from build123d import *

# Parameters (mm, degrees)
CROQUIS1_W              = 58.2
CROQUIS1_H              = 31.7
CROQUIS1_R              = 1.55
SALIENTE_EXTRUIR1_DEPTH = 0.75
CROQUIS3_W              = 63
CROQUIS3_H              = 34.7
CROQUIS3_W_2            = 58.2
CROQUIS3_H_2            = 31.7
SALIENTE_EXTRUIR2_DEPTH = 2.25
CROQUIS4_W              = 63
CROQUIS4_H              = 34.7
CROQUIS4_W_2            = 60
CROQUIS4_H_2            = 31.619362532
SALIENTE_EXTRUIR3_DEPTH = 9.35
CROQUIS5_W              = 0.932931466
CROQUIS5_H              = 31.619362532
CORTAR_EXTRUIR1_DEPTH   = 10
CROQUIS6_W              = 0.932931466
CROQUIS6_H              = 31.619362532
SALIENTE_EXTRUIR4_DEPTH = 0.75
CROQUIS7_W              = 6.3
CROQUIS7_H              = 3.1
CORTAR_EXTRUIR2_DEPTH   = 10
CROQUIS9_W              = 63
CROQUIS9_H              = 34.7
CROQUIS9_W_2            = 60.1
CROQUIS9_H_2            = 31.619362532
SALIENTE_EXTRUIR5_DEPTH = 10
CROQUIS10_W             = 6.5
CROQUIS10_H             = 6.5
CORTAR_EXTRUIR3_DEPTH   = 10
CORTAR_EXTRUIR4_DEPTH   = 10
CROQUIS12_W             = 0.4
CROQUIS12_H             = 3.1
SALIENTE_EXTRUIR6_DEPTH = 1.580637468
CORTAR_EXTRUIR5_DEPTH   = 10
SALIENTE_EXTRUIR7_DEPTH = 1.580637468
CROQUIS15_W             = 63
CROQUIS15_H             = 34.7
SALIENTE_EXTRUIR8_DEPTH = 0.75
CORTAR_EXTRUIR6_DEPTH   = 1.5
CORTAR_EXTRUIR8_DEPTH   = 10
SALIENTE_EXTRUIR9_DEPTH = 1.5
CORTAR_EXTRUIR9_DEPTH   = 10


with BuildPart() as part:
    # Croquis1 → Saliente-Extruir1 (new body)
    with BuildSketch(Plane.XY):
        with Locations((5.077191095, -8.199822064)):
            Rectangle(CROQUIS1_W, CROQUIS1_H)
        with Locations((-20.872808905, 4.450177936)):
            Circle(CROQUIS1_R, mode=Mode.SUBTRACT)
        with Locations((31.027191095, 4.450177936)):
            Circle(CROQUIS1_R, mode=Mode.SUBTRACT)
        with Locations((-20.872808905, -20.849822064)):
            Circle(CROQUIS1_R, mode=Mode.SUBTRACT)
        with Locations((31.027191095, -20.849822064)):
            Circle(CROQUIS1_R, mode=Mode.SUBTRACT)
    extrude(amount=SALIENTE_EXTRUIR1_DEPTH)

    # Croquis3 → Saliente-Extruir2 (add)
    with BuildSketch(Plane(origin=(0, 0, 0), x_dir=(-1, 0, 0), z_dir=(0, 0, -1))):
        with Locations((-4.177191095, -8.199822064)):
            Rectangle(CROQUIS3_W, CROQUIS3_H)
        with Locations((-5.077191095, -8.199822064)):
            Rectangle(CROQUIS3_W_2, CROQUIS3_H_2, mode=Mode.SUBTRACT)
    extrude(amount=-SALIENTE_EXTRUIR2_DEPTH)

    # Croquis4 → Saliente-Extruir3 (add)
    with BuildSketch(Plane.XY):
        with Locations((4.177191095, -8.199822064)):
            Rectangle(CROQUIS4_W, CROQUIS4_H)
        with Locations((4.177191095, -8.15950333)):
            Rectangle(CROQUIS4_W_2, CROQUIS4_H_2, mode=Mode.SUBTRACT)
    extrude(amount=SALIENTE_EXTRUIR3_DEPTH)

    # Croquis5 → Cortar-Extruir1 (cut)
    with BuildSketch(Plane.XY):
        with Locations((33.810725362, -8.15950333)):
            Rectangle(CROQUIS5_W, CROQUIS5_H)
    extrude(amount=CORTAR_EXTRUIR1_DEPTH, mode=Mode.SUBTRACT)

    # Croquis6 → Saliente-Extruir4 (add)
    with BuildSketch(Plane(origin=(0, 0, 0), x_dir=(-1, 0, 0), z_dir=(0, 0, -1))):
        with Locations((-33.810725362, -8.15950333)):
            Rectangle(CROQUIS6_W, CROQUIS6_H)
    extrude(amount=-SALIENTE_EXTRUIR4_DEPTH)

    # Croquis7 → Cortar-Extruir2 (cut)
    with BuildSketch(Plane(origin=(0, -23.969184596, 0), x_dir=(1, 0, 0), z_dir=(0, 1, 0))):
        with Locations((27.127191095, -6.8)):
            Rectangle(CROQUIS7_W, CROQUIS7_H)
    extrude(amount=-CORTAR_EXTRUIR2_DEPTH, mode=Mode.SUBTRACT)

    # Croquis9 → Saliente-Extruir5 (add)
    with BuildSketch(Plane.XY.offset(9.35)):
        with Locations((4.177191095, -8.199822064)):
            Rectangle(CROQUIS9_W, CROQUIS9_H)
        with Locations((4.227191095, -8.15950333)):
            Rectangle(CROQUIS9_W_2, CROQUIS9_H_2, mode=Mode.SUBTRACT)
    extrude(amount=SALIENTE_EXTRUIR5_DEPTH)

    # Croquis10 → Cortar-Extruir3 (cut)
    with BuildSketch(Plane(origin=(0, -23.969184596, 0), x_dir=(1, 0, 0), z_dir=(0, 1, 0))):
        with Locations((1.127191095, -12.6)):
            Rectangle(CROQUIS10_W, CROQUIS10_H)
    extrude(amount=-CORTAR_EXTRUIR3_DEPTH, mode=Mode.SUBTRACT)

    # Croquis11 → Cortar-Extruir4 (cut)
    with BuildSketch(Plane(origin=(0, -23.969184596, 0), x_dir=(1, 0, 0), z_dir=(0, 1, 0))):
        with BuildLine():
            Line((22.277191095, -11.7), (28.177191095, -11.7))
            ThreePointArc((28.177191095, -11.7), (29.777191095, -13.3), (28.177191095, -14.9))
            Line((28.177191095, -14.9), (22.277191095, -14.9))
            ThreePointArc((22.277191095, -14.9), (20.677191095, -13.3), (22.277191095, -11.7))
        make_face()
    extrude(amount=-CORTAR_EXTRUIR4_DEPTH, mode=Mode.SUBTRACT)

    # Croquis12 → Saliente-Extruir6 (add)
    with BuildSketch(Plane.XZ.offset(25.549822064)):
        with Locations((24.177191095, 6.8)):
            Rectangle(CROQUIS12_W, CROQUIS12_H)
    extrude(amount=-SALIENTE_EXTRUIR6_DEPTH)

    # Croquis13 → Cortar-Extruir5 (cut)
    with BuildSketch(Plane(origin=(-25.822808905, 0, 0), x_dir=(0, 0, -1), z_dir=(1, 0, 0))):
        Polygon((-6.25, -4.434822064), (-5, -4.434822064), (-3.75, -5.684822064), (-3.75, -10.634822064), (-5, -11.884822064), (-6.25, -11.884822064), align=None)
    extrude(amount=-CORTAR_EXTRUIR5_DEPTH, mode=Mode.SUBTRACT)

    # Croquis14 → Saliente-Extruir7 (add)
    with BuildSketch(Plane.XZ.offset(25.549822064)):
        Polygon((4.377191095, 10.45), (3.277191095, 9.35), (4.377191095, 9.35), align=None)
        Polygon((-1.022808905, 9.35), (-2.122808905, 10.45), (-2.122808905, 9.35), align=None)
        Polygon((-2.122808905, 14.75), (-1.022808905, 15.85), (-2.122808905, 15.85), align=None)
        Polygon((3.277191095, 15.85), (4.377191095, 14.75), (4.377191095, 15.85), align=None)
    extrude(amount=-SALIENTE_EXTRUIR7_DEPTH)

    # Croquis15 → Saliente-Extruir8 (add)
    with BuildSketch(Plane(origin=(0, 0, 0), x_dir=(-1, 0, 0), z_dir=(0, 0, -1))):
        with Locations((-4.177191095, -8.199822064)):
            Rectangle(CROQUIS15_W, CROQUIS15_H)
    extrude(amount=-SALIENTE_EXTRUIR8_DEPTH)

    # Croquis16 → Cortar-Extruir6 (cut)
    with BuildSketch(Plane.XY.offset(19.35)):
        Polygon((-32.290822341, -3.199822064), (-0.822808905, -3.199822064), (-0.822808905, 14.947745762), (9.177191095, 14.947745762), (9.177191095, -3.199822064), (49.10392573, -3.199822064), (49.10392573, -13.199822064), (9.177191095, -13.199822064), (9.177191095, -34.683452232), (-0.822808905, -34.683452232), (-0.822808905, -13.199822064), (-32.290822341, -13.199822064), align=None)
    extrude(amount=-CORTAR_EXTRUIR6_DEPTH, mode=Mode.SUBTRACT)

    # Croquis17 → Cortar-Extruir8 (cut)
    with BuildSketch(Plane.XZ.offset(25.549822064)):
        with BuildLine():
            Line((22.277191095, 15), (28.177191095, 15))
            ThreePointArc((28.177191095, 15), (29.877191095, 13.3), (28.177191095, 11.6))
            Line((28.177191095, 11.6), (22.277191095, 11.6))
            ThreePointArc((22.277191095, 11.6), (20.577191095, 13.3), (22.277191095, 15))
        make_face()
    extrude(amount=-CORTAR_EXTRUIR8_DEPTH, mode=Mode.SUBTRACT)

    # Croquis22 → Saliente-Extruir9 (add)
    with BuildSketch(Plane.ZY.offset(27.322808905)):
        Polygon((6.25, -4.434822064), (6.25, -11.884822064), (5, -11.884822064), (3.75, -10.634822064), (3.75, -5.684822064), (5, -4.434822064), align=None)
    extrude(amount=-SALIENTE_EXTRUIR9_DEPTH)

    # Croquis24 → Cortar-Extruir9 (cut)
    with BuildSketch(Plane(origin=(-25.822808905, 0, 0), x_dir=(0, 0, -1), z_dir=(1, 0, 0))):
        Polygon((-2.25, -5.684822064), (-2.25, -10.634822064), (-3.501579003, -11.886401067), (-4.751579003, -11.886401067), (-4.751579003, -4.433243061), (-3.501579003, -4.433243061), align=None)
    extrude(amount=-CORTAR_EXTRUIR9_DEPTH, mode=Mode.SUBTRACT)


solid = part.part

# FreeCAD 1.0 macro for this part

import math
import FreeCAD as App
import Part
import Sketcher
Q = App.Units.Quantity

doc = App.newDocument("Part")
body = doc.addObject("PartDesign::Body", "Body")

# Sketch on XY plane
sketch1 = body.newObject("Sketcher::SketchObject", "Sketch")
sketch1.AttachmentSupport = (doc.getObject("XY_Plane"), [""])
sketch1.MapMode = "FlatFace"
sketch1.addGeometry([
    Part.LineSegment(App.Vector(-24.022809, 7.650178, 0), App.Vector(-24.022809, -24.049822, 0)),  # 0
    Part.LineSegment(App.Vector(-24.022809, -24.049822, 0), App.Vector(34.177191, -24.049822, 0)),  # 1
    Part.LineSegment(App.Vector(34.177191, -24.049822, 0), App.Vector(34.177191, 7.650178, 0)),  # 2
    Part.LineSegment(App.Vector(34.177191, 7.650178, 0), App.Vector(-24.022809, 7.650178, 0)),  # 3
    Part.Circle(App.Vector(-20.872809, -20.849822, 0), App.Vector(0, 0, 1), 1.55),  # 4
    Part.Circle(App.Vector(31.027191, -20.849822, 0), App.Vector(0, 0, 1), 1.55),  # 5
    Part.Circle(App.Vector(-20.872809, 4.450178, 0), App.Vector(0, 0, 1), 1.55),  # 6
    Part.Circle(App.Vector(31.027191, 4.450178, 0), App.Vector(0, 0, 1), 1.55),  # 7
], False)
sketch1.addConstraint([
    Sketcher.Constraint("Coincident", 0, 2, 1, 1),
    Sketcher.Constraint("Coincident", 1, 2, 2, 1),
    Sketcher.Constraint("Coincident", 2, 2, 3, 1),
    Sketcher.Constraint("Coincident", 3, 2, 0, 1),
    Sketcher.Constraint("Vertical", 0),
    Sketcher.Constraint("Horizontal", 1),
    Sketcher.Constraint("Vertical", 2),
    Sketcher.Constraint("Horizontal", 3),
    Sketcher.Constraint("Equal", 4, 5),
    Sketcher.Constraint("Equal", 5, 6),
    Sketcher.Constraint("Equal", 6, 7),
    Sketcher.Constraint("Horizontal", 4, 3, 5, 3),
    Sketcher.Constraint("Horizontal", 6, 3, 7, 3),
    Sketcher.Constraint("Vertical", 4, 3, 6, 3),
    Sketcher.Constraint("Vertical", 5, 3, 7, 3),
    Sketcher.Constraint("Diameter", 4, Q("3.1 mm")),
    Sketcher.Constraint("DistanceX", 1, 1, 1, 2, Q("58.2 mm")),
    Sketcher.Constraint("DistanceY", 0, 2, 0, 1, Q("31.7 mm")),
    Sketcher.Constraint("DistanceX", 4, 3, 5, 3, Q("51.9 mm")),
    Sketcher.Constraint("DistanceY", 4, 3, 6, 3, Q("25.3 mm")),
    Sketcher.Constraint("DistanceY", 0, 2, 4, 3, Q("3.2 mm")),
    Sketcher.Constraint("DistanceX", 0, 2, 4, 3, Q("3.15 mm")),
    Sketcher.Constraint("DistanceX", 4, 3, -1, 1, Q("20.872809 mm")),
    Sketcher.Constraint("DistanceY", 4, 3, -1, 1, Q("20.849822 mm")),
])
pad1 = body.newObject("PartDesign::Pad", "Pad")
pad1.Profile = sketch1
pad1.Length = 0.75

# Sketch on XY plane
sketch2 = body.newObject("Sketcher::SketchObject", "Sketch001")
sketch2.AttachmentSupport = (doc.getObject("XY_Plane"), [""])
sketch2.MapMode = "FlatFace"
sketch2.addGeometry([
    Part.LineSegment(App.Vector(35.677191, 9.150178, 0), App.Vector(35.677191, -25.549822, 0)),  # 0
    Part.LineSegment(App.Vector(35.677191, -25.549822, 0), App.Vector(-27.322809, -25.549822, 0)),  # 1
    Part.LineSegment(App.Vector(-27.322809, -25.549822, 0), App.Vector(-27.322809, 9.150178, 0)),  # 2
    Part.LineSegment(App.Vector(-27.322809, 9.150178, 0), App.Vector(35.677191, 9.150178, 0)),  # 3
    Part.LineSegment(App.Vector(-24.022809, -24.049822, 0), App.Vector(34.177191, -24.049822, 0)),  # 4
    Part.LineSegment(App.Vector(34.177191, -24.049822, 0), App.Vector(34.177191, 7.650178, 0)),  # 5
    Part.LineSegment(App.Vector(34.177191, 7.650178, 0), App.Vector(-24.022809, 7.650178, 0)),  # 6
    Part.LineSegment(App.Vector(-24.022809, 7.650178, 0), App.Vector(-24.022809, -24.049822, 0)),  # 7
], False)
sketch2.addConstraint([
    Sketcher.Constraint("Coincident", 0, 2, 1, 1),
    Sketcher.Constraint("Coincident", 1, 2, 2, 1),
    Sketcher.Constraint("Coincident", 2, 2, 3, 1),
    Sketcher.Constraint("Coincident", 3, 2, 0, 1),
    Sketcher.Constraint("Coincident", 4, 2, 5, 1),
    Sketcher.Constraint("Coincident", 5, 2, 6, 1),
    Sketcher.Constraint("Coincident", 6, 2, 7, 1),
    Sketcher.Constraint("Coincident", 7, 2, 4, 1),
    Sketcher.Constraint("Vertical", 0),
    Sketcher.Constraint("Horizontal", 1),
    Sketcher.Constraint("Vertical", 2),
    Sketcher.Constraint("Horizontal", 3),
    Sketcher.Constraint("Horizontal", 4),
    Sketcher.Constraint("Vertical", 5),
    Sketcher.Constraint("Horizontal", 6),
    Sketcher.Constraint("Vertical", 7),
    Sketcher.Constraint("DistanceX", 1, 2, 1, 1, Q("63 mm")),
    Sketcher.Constraint("DistanceX", 4, 1, 4, 2, Q("58.2 mm")),
    Sketcher.Constraint("DistanceY", 0, 2, 0, 1, Q("34.7 mm")),
    Sketcher.Constraint("DistanceY", 5, 1, 5, 2, Q("31.7 mm")),
    Sketcher.Constraint("DistanceX", 4, 2, 0, 2, Q("1.5 mm")),
    Sketcher.Constraint("DistanceY", 0, 2, 4, 2, Q("1.5 mm")),
    Sketcher.Constraint("DistanceX", -1, 1, 0, 2, Q("35.677191 mm")),
    Sketcher.Constraint("DistanceY", 0, 2, -1, 1, Q("25.549822 mm")),
])
pad2 = body.newObject("PartDesign::Pad", "Pad001")
pad2.Profile = sketch2
pad2.Length = 2.25

# Sketch on XY plane
sketch3 = body.newObject("Sketcher::SketchObject", "Sketch002")
sketch3.AttachmentSupport = (doc.getObject("XY_Plane"), [""])
sketch3.MapMode = "FlatFace"
sketch3.addGeometry([
    Part.LineSegment(App.Vector(-27.322809, 9.150178, 0), App.Vector(-27.322809, -25.549822, 0)),  # 0
    Part.LineSegment(App.Vector(-27.322809, -25.549822, 0), App.Vector(35.677191, -25.549822, 0)),  # 1
    Part.LineSegment(App.Vector(35.677191, -25.549822, 0), App.Vector(35.677191, 9.150178, 0)),  # 2
    Part.LineSegment(App.Vector(35.677191, 9.150178, 0), App.Vector(-27.322809, 9.150178, 0)),  # 3
    Part.LineSegment(App.Vector(34.177191, -23.969185, 0), App.Vector(-25.822809, -23.969185, 0)),  # 4
    Part.LineSegment(App.Vector(-25.822809, -23.969185, 0), App.Vector(-25.822809, 7.650178, 0)),  # 5
    Part.LineSegment(App.Vector(-25.822809, 7.650178, 0), App.Vector(34.177191, 7.650178, 0)),  # 6
    Part.LineSegment(App.Vector(34.177191, 7.650178, 0), App.Vector(34.177191, -23.969185, 0)),  # 7
], False)
sketch3.addConstraint([
    Sketcher.Constraint("Coincident", 0, 2, 1, 1),
    Sketcher.Constraint("Coincident", 1, 2, 2, 1),
    Sketcher.Constraint("Coincident", 2, 2, 3, 1),
    Sketcher.Constraint("Coincident", 3, 2, 0, 1),
    Sketcher.Constraint("Coincident", 4, 2, 5, 1),
    Sketcher.Constraint("Coincident", 5, 2, 6, 1),
    Sketcher.Constraint("Coincident", 6, 2, 7, 1),
    Sketcher.Constraint("Coincident", 7, 2, 4, 1),
    Sketcher.Constraint("Vertical", 0),
    Sketcher.Constraint("Horizontal", 1),
    Sketcher.Constraint("Vertical", 2),
    Sketcher.Constraint("Horizontal", 3),
    Sketcher.Constraint("Horizontal", 4),
    Sketcher.Constraint("Vertical", 5),
    Sketcher.Constraint("Horizontal", 6),
    Sketcher.Constraint("Vertical", 7),
    Sketcher.Constraint("DistanceX", 1, 1, 1, 2, Q("63 mm")),
    Sketcher.Constraint("DistanceX", 4, 2, 4, 1, Q("60 mm")),
    Sketcher.Constraint("DistanceY", 0, 2, 0, 1, Q("34.7 mm")),
    Sketcher.Constraint("DistanceX", 0, 2, 4, 2, Q("1.5 mm")),
    Sketcher.Constraint("DistanceY", 5, 2, 3, 2, Q("1.5 mm")),
    Sketcher.Constraint("DistanceY", 5, 1, 5, 2, Q("31.619363 mm")),
    Sketcher.Constraint("DistanceX", 0, 2, -1, 1, Q("27.322809 mm")),
    Sketcher.Constraint("DistanceY", 0, 2, -1, 1, Q("25.549822 mm")),
])
pad3 = body.newObject("PartDesign::Pad", "Pad002")
pad3.Profile = sketch3
pad3.Length = 9.35

# Sketch on XY plane
sketch4 = body.newObject("Sketcher::SketchObject", "Sketch003")
sketch4.AttachmentSupport = (doc.getObject("XY_Plane"), [""])
sketch4.MapMode = "FlatFace"
sketch4.addGeometry([
    Part.LineSegment(App.Vector(33.34426, 7.650178, 0), App.Vector(33.34426, -23.969185, 0)),
    Part.LineSegment(App.Vector(33.34426, -23.969185, 0), App.Vector(34.277191, -23.969185, 0)),
    Part.LineSegment(App.Vector(34.277191, -23.969185, 0), App.Vector(34.277191, 7.650178, 0)),
    Part.LineSegment(App.Vector(34.277191, 7.650178, 0), App.Vector(33.34426, 7.650178, 0)),
], False)
sketch4.addConstraint([
    Sketcher.Constraint("Coincident", 0, 2, 1, 1),
    Sketcher.Constraint("Coincident", 1, 2, 2, 1),
    Sketcher.Constraint("Coincident", 2, 2, 3, 1),
    Sketcher.Constraint("Coincident", 3, 2, 0, 1),
    Sketcher.Constraint("Vertical", 0),
    Sketcher.Constraint("Horizontal", 1),
    Sketcher.Constraint("Vertical", 2),
    Sketcher.Constraint("Horizontal", 3),
    Sketcher.Constraint("DistanceX", 1, 1, 1, 2, Q("0.932931 mm")),
    Sketcher.Constraint("DistanceY", 0, 2, 0, 1, Q("31.619363 mm")),
    Sketcher.Constraint("DistanceX", -1, 1, 0, 2, Q("33.34426 mm")),
    Sketcher.Constraint("DistanceY", 0, 2, -1, 1, Q("23.969185 mm")),
])
pocket1 = body.newObject("PartDesign::Pocket", "Pocket")
pocket1.Profile = sketch4
pocket1.Length = 10
pocket1.Reversed = True

# Sketch on XY plane
sketch5 = body.newObject("Sketcher::SketchObject", "Sketch004")
sketch5.AttachmentSupport = (doc.getObject("XY_Plane"), [""])
sketch5.MapMode = "FlatFace"
sketch5.addGeometry([
    Part.LineSegment(App.Vector(34.277191, 7.650178, 0), App.Vector(34.277191, -23.969185, 0)),
    Part.LineSegment(App.Vector(34.277191, -23.969185, 0), App.Vector(33.34426, -23.969185, 0)),
    Part.LineSegment(App.Vector(33.34426, -23.969185, 0), App.Vector(33.34426, 7.650178, 0)),
    Part.LineSegment(App.Vector(33.34426, 7.650178, 0), App.Vector(34.277191, 7.650178, 0)),
], False)
sketch5.addConstraint([
    Sketcher.Constraint("Coincident", 0, 2, 1, 1),
    Sketcher.Constraint("Coincident", 1, 2, 2, 1),
    Sketcher.Constraint("Coincident", 2, 2, 3, 1),
    Sketcher.Constraint("Coincident", 3, 2, 0, 1),
    Sketcher.Constraint("Vertical", 0),
    Sketcher.Constraint("Horizontal", 1),
    Sketcher.Constraint("Vertical", 2),
    Sketcher.Constraint("Horizontal", 3),
    Sketcher.Constraint("DistanceX", 1, 2, 1, 1, Q("0.932931 mm")),
    Sketcher.Constraint("DistanceY", 0, 2, 0, 1, Q("31.619363 mm")),
    Sketcher.Constraint("DistanceX", -1, 1, 0, 2, Q("34.277191 mm")),
    Sketcher.Constraint("DistanceY", 0, 2, -1, 1, Q("23.969185 mm")),
])
pad4 = body.newObject("PartDesign::Pad", "Pad003")
pad4.Profile = sketch5
pad4.Length = 0.75

# Sketch on XZ plane
sketch6 = body.newObject("Sketcher::SketchObject", "Sketch005")
sketch6.AttachmentSupport = (doc.getObject("XZ_Plane"), [""])
sketch6.MapMode = "FlatFace"
sketch6.AttachmentOffset = App.Placement(App.Vector(0, 0, 23.969185), App.Rotation())
sketch6.addGeometry([
    Part.LineSegment(App.Vector(23.977191, 5.25, 0), App.Vector(23.977191, 8.35, 0)),
    Part.LineSegment(App.Vector(23.977191, 8.35, 0), App.Vector(30.277191, 8.35, 0)),
    Part.LineSegment(App.Vector(30.277191, 8.35, 0), App.Vector(30.277191, 5.25, 0)),
    Part.LineSegment(App.Vector(30.277191, 5.25, 0), App.Vector(23.977191, 5.25, 0)),
], False)
sketch6.addConstraint([
    Sketcher.Constraint("Coincident", 0, 2, 1, 1),
    Sketcher.Constraint("Coincident", 1, 2, 2, 1),
    Sketcher.Constraint("Coincident", 2, 2, 3, 1),
    Sketcher.Constraint("Coincident", 3, 2, 0, 1),
    Sketcher.Constraint("Vertical", 0),
    Sketcher.Constraint("Horizontal", 1),
    Sketcher.Constraint("Vertical", 2),
    Sketcher.Constraint("Horizontal", 3),
    Sketcher.Constraint("DistanceX", 1, 1, 1, 2, Q("6.3 mm")),
    Sketcher.Constraint("DistanceY", 0, 1, 0, 2, Q("3.1 mm")),
    Sketcher.Constraint("DistanceY", -1, 1, 0, 2, Q("8.35 mm")),
    Sketcher.Constraint("DistanceX", -1, 1, 0, 2, Q("23.977191 mm")),
])
pocket2 = body.newObject("PartDesign::Pocket", "Pocket001")
pocket2.Profile = sketch6
pocket2.Length = 10
pocket2.Reversed = True

# Sketch on XY plane
sketch7 = body.newObject("Sketcher::SketchObject", "Sketch006")
sketch7.AttachmentSupport = (doc.getObject("XY_Plane"), [""])
sketch7.MapMode = "FlatFace"
sketch7.AttachmentOffset = App.Placement(App.Vector(0, 0, 9.35), App.Rotation())
sketch7.addGeometry([
    Part.LineSegment(App.Vector(-27.322809, 9.150178, 0), App.Vector(-27.322809, -25.549822, 0)),  # 0
    Part.LineSegment(App.Vector(-27.322809, -25.549822, 0), App.Vector(35.677191, -25.549822, 0)),  # 1
    Part.LineSegment(App.Vector(35.677191, -25.549822, 0), App.Vector(35.677191, 9.150178, 0)),  # 2
    Part.LineSegment(App.Vector(35.677191, 9.150178, 0), App.Vector(-27.322809, 9.150178, 0)),  # 3
    Part.LineSegment(App.Vector(34.277191, -23.969185, 0), App.Vector(-25.822809, -23.969185, 0)),  # 4
    Part.LineSegment(App.Vector(-25.822809, -23.969185, 0), App.Vector(-25.822809, 7.650178, 0)),  # 5
    Part.LineSegment(App.Vector(-25.822809, 7.650178, 0), App.Vector(34.277191, 7.650178, 0)),  # 6
    Part.LineSegment(App.Vector(34.277191, 7.650178, 0), App.Vector(34.277191, -23.969185, 0)),  # 7
], False)
sketch7.addConstraint([
    Sketcher.Constraint("Coincident", 0, 2, 1, 1),
    Sketcher.Constraint("Coincident", 1, 2, 2, 1),
    Sketcher.Constraint("Coincident", 2, 2, 3, 1),
    Sketcher.Constraint("Coincident", 3, 2, 0, 1),
    Sketcher.Constraint("Coincident", 4, 2, 5, 1),
    Sketcher.Constraint("Coincident", 5, 2, 6, 1),
    Sketcher.Constraint("Coincident", 6, 2, 7, 1),
    Sketcher.Constraint("Coincident", 7, 2, 4, 1),
    Sketcher.Constraint("Vertical", 0),
    Sketcher.Constraint("Horizontal", 1),
    Sketcher.Constraint("Vertical", 2),
    Sketcher.Constraint("Horizontal", 3),
    Sketcher.Constraint("Horizontal", 4),
    Sketcher.Constraint("Vertical", 5),
    Sketcher.Constraint("Horizontal", 6),
    Sketcher.Constraint("Vertical", 7),
    Sketcher.Constraint("DistanceX", 1, 1, 1, 2, Q("63 mm")),
    Sketcher.Constraint("DistanceX", 4, 2, 4, 1, Q("60.1 mm")),
    Sketcher.Constraint("DistanceY", 0, 2, 0, 1, Q("34.7 mm")),
    Sketcher.Constraint("DistanceX", 0, 2, 4, 2, Q("1.5 mm")),
    Sketcher.Constraint("DistanceY", 5, 2, 3, 2, Q("1.5 mm")),
    Sketcher.Constraint("DistanceY", 5, 1, 5, 2, Q("31.619363 mm")),
    Sketcher.Constraint("DistanceX", 0, 2, -1, 1, Q("27.322809 mm")),
    Sketcher.Constraint("DistanceY", 0, 2, -1, 1, Q("25.549822 mm")),
])
pad5 = body.newObject("PartDesign::Pad", "Pad004")
pad5.Profile = sketch7
pad5.Length = 10

# Sketch on XZ plane
sketch8 = body.newObject("Sketcher::SketchObject", "Sketch007")
sketch8.AttachmentSupport = (doc.getObject("XZ_Plane"), [""])
sketch8.MapMode = "FlatFace"
sketch8.AttachmentOffset = App.Placement(App.Vector(0, 0, 23.969185), App.Rotation())
sketch8.addGeometry([
    Part.LineSegment(App.Vector(-2.122809, 9.35, 0), App.Vector(-2.122809, 15.85, 0)),
    Part.LineSegment(App.Vector(-2.122809, 15.85, 0), App.Vector(4.377191, 15.85, 0)),
    Part.LineSegment(App.Vector(4.377191, 15.85, 0), App.Vector(4.377191, 9.35, 0)),
    Part.LineSegment(App.Vector(4.377191, 9.35, 0), App.Vector(-2.122809, 9.35, 0)),
], False)
sketch8.addConstraint([
    Sketcher.Constraint("Coincident", 0, 2, 1, 1),
    Sketcher.Constraint("Coincident", 1, 2, 2, 1),
    Sketcher.Constraint("Coincident", 2, 2, 3, 1),
    Sketcher.Constraint("Coincident", 3, 2, 0, 1),
    Sketcher.Constraint("Vertical", 0),
    Sketcher.Constraint("Horizontal", 1),
    Sketcher.Constraint("Vertical", 2),
    Sketcher.Constraint("Horizontal", 3),
    Sketcher.Constraint("Equal", 3, 0),
    Sketcher.Constraint("DistanceX", 1, 1, 1, 2, Q("6.5 mm")),
    Sketcher.Constraint("DistanceY", -1, 1, 0, 2, Q("15.85 mm")),
    Sketcher.Constraint("DistanceX", 0, 2, -1, 1, Q("2.122809 mm")),
])
pocket3 = body.newObject("PartDesign::Pocket", "Pocket002")
pocket3.Profile = sketch8
pocket3.Length = 10
pocket3.Reversed = True

# Sketch on XZ plane
sketch9 = body.newObject("Sketcher::SketchObject", "Sketch008")
sketch9.AttachmentSupport = (doc.getObject("XZ_Plane"), [""])
sketch9.MapMode = "FlatFace"
sketch9.AttachmentOffset = App.Placement(App.Vector(0, 0, 23.969185), App.Rotation())
sketch9.addGeometry([
    Part.LineSegment(App.Vector(28.177191, 11.7, 0), App.Vector(22.277191, 11.7, 0)),
    Part.ArcOfCircle(Part.Circle(App.Vector(22.277191, 13.3, 0), App.Vector(0, 0, 1), 1.6), math.radians(90), math.radians(270)),
    Part.LineSegment(App.Vector(22.277191, 14.9, 0), App.Vector(28.177191, 14.9, 0)),
    Part.ArcOfCircle(Part.Circle(App.Vector(28.177191, 13.3, 0), App.Vector(0, 0, 1), 1.6), math.radians(-90), math.radians(90)),
], False)
sketch9.addConstraint([
    Sketcher.Constraint("Tangent", 0, 2, 1, 2),
    Sketcher.Constraint("Tangent", 1, 1, 2, 1),
    Sketcher.Constraint("Tangent", 2, 2, 3, 2),
    Sketcher.Constraint("Tangent", 3, 1, 0, 1),
    Sketcher.Constraint("Horizontal", 0),
    Sketcher.Constraint("Horizontal", 2),
    Sketcher.Constraint("Radius", 1, Q("1.6 mm")),
    Sketcher.Constraint("DistanceX", 0, 2, 0, 1, Q("5.9 mm")),
    Sketcher.Constraint("DistanceY", -1, 1, 1, 3, Q("13.3 mm")),
    Sketcher.Constraint("DistanceX", -1, 1, 1, 3, Q("22.277191 mm")),
])
pocket4 = body.newObject("PartDesign::Pocket", "Pocket003")
pocket4.Profile = sketch9
pocket4.Length = 10
pocket4.Reversed = True

# Sketch on XZ plane
sketch10 = body.newObject("Sketcher::SketchObject", "Sketch009")
sketch10.AttachmentSupport = (doc.getObject("XZ_Plane"), [""])
sketch10.MapMode = "FlatFace"
sketch10.AttachmentOffset = App.Placement(App.Vector(0, 0, 25.549822), App.Rotation())
sketch10.addGeometry([
    Part.LineSegment(App.Vector(23.977191, 8.35, 0), App.Vector(23.977191, 5.25, 0)),
    Part.LineSegment(App.Vector(23.977191, 5.25, 0), App.Vector(24.377191, 5.25, 0)),
    Part.LineSegment(App.Vector(24.377191, 5.25, 0), App.Vector(24.377191, 8.35, 0)),
    Part.LineSegment(App.Vector(24.377191, 8.35, 0), App.Vector(23.977191, 8.35, 0)),
], False)
sketch10.addConstraint([
    Sketcher.Constraint("Coincident", 0, 2, 1, 1),
    Sketcher.Constraint("Coincident", 1, 2, 2, 1),
    Sketcher.Constraint("Coincident", 2, 2, 3, 1),
    Sketcher.Constraint("Coincident", 3, 2, 0, 1),
    Sketcher.Constraint("Vertical", 0),
    Sketcher.Constraint("Horizontal", 1),
    Sketcher.Constraint("Vertical", 2),
    Sketcher.Constraint("Horizontal", 3),
    Sketcher.Constraint("DistanceX", 1, 1, 1, 2, Q("0.4 mm")),
    Sketcher.Constraint("DistanceY", 0, 2, 0, 1, Q("3.1 mm")),
    Sketcher.Constraint("DistanceY", -1, 1, 0, 2, Q("5.25 mm")),
    Sketcher.Constraint("DistanceX", -1, 1, 0, 2, Q("23.977191 mm")),
])
pad6 = body.newObject("PartDesign::Pad", "Pad005")
pad6.Profile = sketch10
pad6.Length = 1.580637
pad6.Reversed = True

# Sketch on YZ plane
sketch11 = body.newObject("Sketcher::SketchObject", "Sketch010")
sketch11.AttachmentSupport = (doc.getObject("YZ_Plane"), [""])
sketch11.MapMode = "FlatFace"
sketch11.AttachmentOffset = App.Placement(App.Vector(0, 0, -25.822809), App.Rotation())
sketch11.addGeometry([
    Part.LineSegment(App.Vector(-4.434822, 5, 0), App.Vector(-4.434822, 6.25, 0)),  # 0
    Part.LineSegment(App.Vector(-4.434822, 6.25, 0), App.Vector(-11.884822, 6.25, 0)),  # 1
    Part.LineSegment(App.Vector(-11.884822, 6.25, 0), App.Vector(-11.884822, 5, 0)),  # 2
    Part.LineSegment(App.Vector(-11.884822, 5, 0), App.Vector(-10.634822, 3.75, 0)),  # 3
    Part.LineSegment(App.Vector(-10.634822, 3.75, 0), App.Vector(-5.684822, 3.75, 0)),  # 4
    Part.LineSegment(App.Vector(-5.684822, 3.75, 0), App.Vector(-4.434822, 5, 0)),  # 5
], False)
sketch11.addConstraint([
    Sketcher.Constraint("Coincident", 0, 2, 1, 1),
    Sketcher.Constraint("Coincident", 1, 2, 2, 1),
    Sketcher.Constraint("Coincident", 2, 2, 3, 1),
    Sketcher.Constraint("Coincident", 3, 2, 4, 1),
    Sketcher.Constraint("Coincident", 4, 2, 5, 1),
    Sketcher.Constraint("Coincident", 5, 2, 0, 1),
    Sketcher.Constraint("Vertical", 0),
    Sketcher.Constraint("Horizontal", 1),
    Sketcher.Constraint("Vertical", 2),
    Sketcher.Constraint("Horizontal", 4),
    Sketcher.Constraint("Perpendicular", 3, 5),
    Sketcher.Constraint("Horizontal", 2, 2, 5, 2),
    Sketcher.Constraint("Equal", 3, 5),
    Sketcher.Constraint("DistanceY", -1, 1, 2, 2, Q("5 mm")),
    Sketcher.Constraint("DistanceX", 1, 2, 1, 1, Q("7.45 mm")),
    Sketcher.Constraint("DistanceX", 4, 1, 4, 2, Q("4.95 mm")),
    Sketcher.Constraint("DistanceY", 0, 1, 0, 2, Q("1.25 mm")),
    Sketcher.Constraint("DistanceX", 0, 2, -1, 1, Q("4.434822 mm")),
])
pocket5 = body.newObject("PartDesign::Pocket", "Pocket004")
pocket5.Profile = sketch11
pocket5.Length = 10

# Sketch on XZ plane
sketch12 = body.newObject("Sketcher::SketchObject", "Sketch011")
sketch12.AttachmentSupport = (doc.getObject("XZ_Plane"), [""])
sketch12.MapMode = "FlatFace"
sketch12.AttachmentOffset = App.Placement(App.Vector(0, 0, 25.549822), App.Rotation())
sketch12.addGeometry([
    Part.LineSegment(App.Vector(4.377191, 10.45, 0), App.Vector(3.277191, 9.35, 0)),  # 0
    Part.LineSegment(App.Vector(3.277191, 9.35, 0), App.Vector(4.377191, 9.35, 0)),  # 1
    Part.LineSegment(App.Vector(4.377191, 9.35, 0), App.Vector(4.377191, 10.45, 0)),  # 2
    Part.LineSegment(App.Vector(-1.022809, 9.35, 0), App.Vector(-2.122809, 10.45, 0)),  # 3
    Part.LineSegment(App.Vector(-2.122809, 10.45, 0), App.Vector(-2.122809, 9.35, 0)),  # 4
    Part.LineSegment(App.Vector(-2.122809, 9.35, 0), App.Vector(-1.022809, 9.35, 0)),  # 5
    Part.LineSegment(App.Vector(-2.122809, 14.75, 0), App.Vector(-1.022809, 15.85, 0)),  # 6
    Part.LineSegment(App.Vector(-1.022809, 15.85, 0), App.Vector(-2.122809, 15.85, 0)),  # 7
    Part.LineSegment(App.Vector(-2.122809, 15.85, 0), App.Vector(-2.122809, 14.75, 0)),  # 8
    Part.LineSegment(App.Vector(3.277191, 15.85, 0), App.Vector(4.377191, 14.75, 0)),  # 9
    Part.LineSegment(App.Vector(4.377191, 14.75, 0), App.Vector(4.377191, 15.85, 0)),  # 10
    Part.LineSegment(App.Vector(4.377191, 15.85, 0), App.Vector(3.277191, 15.85, 0)),  # 11
], False)
sketch12.addConstraint([
    Sketcher.Constraint("Coincident", 0, 2, 1, 1),
    Sketcher.Constraint("Coincident", 1, 2, 2, 1),
    Sketcher.Constraint("Coincident", 2, 2, 0, 1),
    Sketcher.Constraint("Coincident", 3, 2, 4, 1),
    Sketcher.Constraint("Coincident", 4, 2, 5, 1),
    Sketcher.Constraint("Coincident", 5, 2, 3, 1),
    Sketcher.Constraint("Coincident", 6, 2, 7, 1),
    Sketcher.Constraint("Coincident", 7, 2, 8, 1),
    Sketcher.Constraint("Coincident", 8, 2, 6, 1),
    Sketcher.Constraint("Coincident", 9, 2, 10, 1),
    Sketcher.Constraint("Coincident", 10, 2, 11, 1),
    Sketcher.Constraint("Coincident", 11, 2, 9, 1),
    Sketcher.Constraint("Horizontal", 1),
    Sketcher.Constraint("Vertical", 2),
    Sketcher.Constraint("Vertical", 4),
    Sketcher.Constraint("Horizontal", 5),
    Sketcher.Constraint("Horizontal", 7),
    Sketcher.Constraint("Vertical", 8),
    Sketcher.Constraint("Vertical", 10),
    Sketcher.Constraint("Horizontal", 11),
    Sketcher.Constraint("Perpendicular", 0, 3),
    Sketcher.Constraint("Perpendicular", 3, 6),
    Sketcher.Constraint("Perpendicular", 6, 9),
    Sketcher.Constraint("Horizontal", 2, 2, 3, 2),
    Sketcher.Constraint("Horizontal", 1, 2, 4, 2),
    Sketcher.Constraint("Horizontal", 8, 2, 9, 2),
    Sketcher.Constraint("Horizontal", 7, 2, 10, 2),
    Sketcher.Constraint("Vertical", 5, 2, 6, 2),
    Sketcher.Constraint("Vertical", 4, 2, 7, 2),
    Sketcher.Constraint("Vertical", 2, 2, 9, 2),
    Sketcher.Constraint("Vertical", 0, 2, 11, 2),
    Sketcher.Constraint("DistanceX", 1, 1, 1, 2, Q("1.1 mm")),
    Sketcher.Constraint("DistanceX", 3, 2, 0, 2, Q("5.4 mm")),
    Sketcher.Constraint("DistanceY", 3, 2, 6, 2, Q("5.4 mm")),
    Sketcher.Constraint("DistanceY", -1, 1, 0, 2, Q("9.35 mm")),
    Sketcher.Constraint("DistanceX", -1, 1, 0, 2, Q("3.277191 mm")),
])
pad7 = body.newObject("PartDesign::Pad", "Pad006")
pad7.Profile = sketch12
pad7.Length = 1.580637
pad7.Reversed = True

# Sketch on XY plane
sketch13 = body.newObject("Sketcher::SketchObject", "Sketch012")
sketch13.AttachmentSupport = (doc.getObject("XY_Plane"), [""])
sketch13.MapMode = "FlatFace"
sketch13.addGeometry([
    Part.LineSegment(App.Vector(35.677191, 9.150178, 0), App.Vector(35.677191, -25.549822, 0)),
    Part.LineSegment(App.Vector(35.677191, -25.549822, 0), App.Vector(-27.322809, -25.549822, 0)),
    Part.LineSegment(App.Vector(-27.322809, -25.549822, 0), App.Vector(-27.322809, 9.150178, 0)),
    Part.LineSegment(App.Vector(-27.322809, 9.150178, 0), App.Vector(35.677191, 9.150178, 0)),
], False)
sketch13.addConstraint([
    Sketcher.Constraint("Coincident", 0, 2, 1, 1),
    Sketcher.Constraint("Coincident", 1, 2, 2, 1),
    Sketcher.Constraint("Coincident", 2, 2, 3, 1),
    Sketcher.Constraint("Coincident", 3, 2, 0, 1),
    Sketcher.Constraint("Vertical", 0),
    Sketcher.Constraint("Horizontal", 1),
    Sketcher.Constraint("Vertical", 2),
    Sketcher.Constraint("Horizontal", 3),
    Sketcher.Constraint("DistanceX", 1, 2, 1, 1, Q("63 mm")),
    Sketcher.Constraint("DistanceY", 0, 2, 0, 1, Q("34.7 mm")),
    Sketcher.Constraint("DistanceX", -1, 1, 0, 2, Q("35.677191 mm")),
    Sketcher.Constraint("DistanceY", 0, 2, -1, 1, Q("25.549822 mm")),
])
pad8 = body.newObject("PartDesign::Pad", "Pad007")
pad8.Profile = sketch13
pad8.Length = 0.75

# Sketch on XY plane
sketch14 = body.newObject("Sketcher::SketchObject", "Sketch013")
sketch14.AttachmentSupport = (doc.getObject("XY_Plane"), [""])
sketch14.MapMode = "FlatFace"
sketch14.AttachmentOffset = App.Placement(App.Vector(0, 0, 19.35), App.Rotation())
sketch14.addGeometry([
    Part.LineSegment(App.Vector(-0.822809, -3.199822, 0), App.Vector(-32.290822, -3.199822, 0)),  # 0
    Part.LineSegment(App.Vector(-32.290822, -3.199822, 0), App.Vector(-32.290822, -13.199822, 0)),  # 1
    Part.LineSegment(App.Vector(-32.290822, -13.199822, 0), App.Vector(-0.822809, -13.199822, 0)),  # 2
    Part.LineSegment(App.Vector(-0.822809, -13.199822, 0), App.Vector(-0.822809, -34.683452, 0)),  # 3
    Part.LineSegment(App.Vector(-0.822809, -34.683452, 0), App.Vector(9.177191, -34.683452, 0)),  # 4
    Part.LineSegment(App.Vector(9.177191, -34.683452, 0), App.Vector(9.177191, -13.199822, 0)),  # 5
    Part.LineSegment(App.Vector(9.177191, -13.199822, 0), App.Vector(49.103926, -13.199822, 0)),  # 6
    Part.LineSegment(App.Vector(49.103926, -13.199822, 0), App.Vector(49.103926, -3.199822, 0)),  # 7
    Part.LineSegment(App.Vector(49.103926, -3.199822, 0), App.Vector(9.177191, -3.199822, 0)),  # 8
    Part.LineSegment(App.Vector(9.177191, -3.199822, 0), App.Vector(9.177191, 14.947746, 0)),  # 9
    Part.LineSegment(App.Vector(9.177191, 14.947746, 0), App.Vector(-0.822809, 14.947746, 0)),  # 10
    Part.LineSegment(App.Vector(-0.822809, 14.947746, 0), App.Vector(-0.822809, -3.199822, 0)),  # 11
], False)
sketch14.addConstraint([
    Sketcher.Constraint("Coincident", 0, 2, 1, 1),
    Sketcher.Constraint("Coincident", 1, 2, 2, 1),
    Sketcher.Constraint("Coincident", 2, 2, 3, 1),
    Sketcher.Constraint("Coincident", 3, 2, 4, 1),
    Sketcher.Constraint("Coincident", 4, 2, 5, 1),
    Sketcher.Constraint("Coincident", 5, 2, 6, 1),
    Sketcher.Constraint("Coincident", 6, 2, 7, 1),
    Sketcher.Constraint("Coincident", 7, 2, 8, 1),
    Sketcher.Constraint("Coincident", 8, 2, 9, 1),
    Sketcher.Constraint("Coincident", 9, 2, 10, 1),
    Sketcher.Constraint("Coincident", 10, 2, 11, 1),
    Sketcher.Constraint("Coincident", 11, 2, 0, 1),
    Sketcher.Constraint("Horizontal", 0),
    Sketcher.Constraint("Vertical", 1),
    Sketcher.Constraint("Horizontal", 2),
    Sketcher.Constraint("Vertical", 3),
    Sketcher.Constraint("Horizontal", 4),
    Sketcher.Constraint("Vertical", 5),
    Sketcher.Constraint("Horizontal", 6),
    Sketcher.Constraint("Vertical", 7),
    Sketcher.Constraint("Horizontal", 8),
    Sketcher.Constraint("Vertical", 9),
    Sketcher.Constraint("Horizontal", 10),
    Sketcher.Constraint("Vertical", 11),
    Sketcher.Constraint("Horizontal", 2, 2, 5, 2),
    Sketcher.Constraint("Horizontal", 0, 2, 7, 2),
    Sketcher.Constraint("Vertical", 5, 2, 8, 2),
    Sketcher.Constraint("Vertical", 3, 2, 10, 2),
    Sketcher.Constraint("Equal", 10, 1),
    Sketcher.Constraint("DistanceX", 4, 1, 4, 2, Q("10 mm")),
    Sketcher.Constraint("DistanceY", 3, 2, 3, 1, Q("21.48363 mm")),
    Sketcher.Constraint("DistanceX", 0, 2, 0, 1, Q("31.468013 mm")),
    Sketcher.Constraint("DistanceX", 6, 1, 6, 2, Q("39.926735 mm")),
    Sketcher.Constraint("DistanceY", 9, 1, 9, 2, Q("18.147568 mm")),
    Sketcher.Constraint("DistanceX", 2, 2, -1, 1, Q("0.822809 mm")),
    Sketcher.Constraint("DistanceY", 0, 2, -1, 1, Q("3.199822 mm")),
])
pocket6 = body.newObject("PartDesign::Pocket", "Pocket005")
pocket6.Profile = sketch14
pocket6.Length = 1.5

# Sketch on XZ plane
sketch15 = body.newObject("Sketcher::SketchObject", "Sketch014")
sketch15.AttachmentSupport = (doc.getObject("XZ_Plane"), [""])
sketch15.MapMode = "FlatFace"
sketch15.AttachmentOffset = App.Placement(App.Vector(0, 0, 25.549822), App.Rotation())
sketch15.addGeometry([
    Part.LineSegment(App.Vector(28.177191, 15, 0), App.Vector(22.277191, 15, 0)),
    Part.ArcOfCircle(Part.Circle(App.Vector(22.277191, 13.3, 0), App.Vector(0, 0, 1), 1.7), math.radians(90), math.radians(270)),
    Part.LineSegment(App.Vector(22.277191, 11.6, 0), App.Vector(28.177191, 11.6, 0)),
    Part.ArcOfCircle(Part.Circle(App.Vector(28.177191, 13.3, 0), App.Vector(0, 0, 1), 1.7), math.radians(-90), math.radians(90)),
], False)
sketch15.addConstraint([
    Sketcher.Constraint("Tangent", 0, 2, 1, 1),
    Sketcher.Constraint("Tangent", 1, 2, 2, 1),
    Sketcher.Constraint("Tangent", 2, 2, 3, 1),
    Sketcher.Constraint("Tangent", 3, 2, 0, 1),
    Sketcher.Constraint("Horizontal", 0),
    Sketcher.Constraint("Horizontal", 2),
    Sketcher.Constraint("Radius", 1, Q("1.7 mm")),
    Sketcher.Constraint("DistanceX", 0, 2, 0, 1, Q("5.9 mm")),
    Sketcher.Constraint("DistanceY", -1, 1, 0, 2, Q("15 mm")),
    Sketcher.Constraint("DistanceX", -1, 1, 1, 3, Q("22.277191 mm")),
])
pocket7 = body.newObject("PartDesign::Pocket", "Pocket006")
pocket7.Profile = sketch15
pocket7.Length = 10

# Sketch on YZ plane
sketch16 = body.newObject("Sketcher::SketchObject", "Sketch015")
sketch16.AttachmentSupport = (doc.getObject("YZ_Plane"), [""])
sketch16.MapMode = "FlatFace"
sketch16.AttachmentOffset = App.Placement(App.Vector(0, 0, -27.322809), App.Rotation())
sketch16.addGeometry([
    Part.LineSegment(App.Vector(-11.884822, 6.25, 0), App.Vector(-4.434822, 6.25, 0)),  # 0
    Part.LineSegment(App.Vector(-4.434822, 6.25, 0), App.Vector(-4.434822, 5, 0)),  # 1
    Part.LineSegment(App.Vector(-4.434822, 5, 0), App.Vector(-5.684822, 3.75, 0)),  # 2
    Part.LineSegment(App.Vector(-5.684822, 3.75, 0), App.Vector(-10.634822, 3.75, 0)),  # 3
    Part.LineSegment(App.Vector(-10.634822, 3.75, 0), App.Vector(-11.884822, 5, 0)),  # 4
    Part.LineSegment(App.Vector(-11.884822, 5, 0), App.Vector(-11.884822, 6.25, 0)),  # 5
], False)
sketch16.addConstraint([
    Sketcher.Constraint("Coincident", 0, 2, 1, 1),
    Sketcher.Constraint("Coincident", 1, 2, 2, 1),
    Sketcher.Constraint("Coincident", 2, 2, 3, 1),
    Sketcher.Constraint("Coincident", 3, 2, 4, 1),
    Sketcher.Constraint("Coincident", 4, 2, 5, 1),
    Sketcher.Constraint("Coincident", 5, 2, 0, 1),
    Sketcher.Constraint("Horizontal", 0),
    Sketcher.Constraint("Vertical", 1),
    Sketcher.Constraint("Horizontal", 3),
    Sketcher.Constraint("Vertical", 5),
    Sketcher.Constraint("Perpendicular", 2, 4),
    Sketcher.Constraint("Horizontal", 1, 2, 4, 2),
    Sketcher.Constraint("Equal", 2, 4),
    Sketcher.Constraint("DistanceY", -1, 1, 1, 2, Q("5 mm")),
    Sketcher.Constraint("DistanceX", 0, 1, 0, 2, Q("7.45 mm")),
    Sketcher.Constraint("DistanceX", 3, 2, 3, 1, Q("4.95 mm")),
    Sketcher.Constraint("DistanceY", 1, 2, 1, 1, Q("1.25 mm")),
    Sketcher.Constraint("DistanceX", 0, 2, -1, 1, Q("4.434822 mm")),
])
pad9 = body.newObject("PartDesign::Pad", "Pad008")
pad9.Profile = sketch16
pad9.Length = 1.5

# Sketch on YZ plane
sketch17 = body.newObject("Sketcher::SketchObject", "Sketch016")
sketch17.AttachmentSupport = (doc.getObject("YZ_Plane"), [""])
sketch17.MapMode = "FlatFace"
sketch17.AttachmentOffset = App.Placement(App.Vector(0, 0, -25.822809), App.Rotation())
sketch17.addGeometry([
    Part.LineSegment(App.Vector(-10.634822, 2.25, 0), App.Vector(-5.684822, 2.25, 0)),  # 0
    Part.LineSegment(App.Vector(-5.684822, 2.25, 0), App.Vector(-4.433243, 3.501579, 0)),  # 1
    Part.LineSegment(App.Vector(-4.433243, 3.501579, 0), App.Vector(-4.433243, 4.751579, 0)),  # 2
    Part.LineSegment(App.Vector(-4.433243, 4.751579, 0), App.Vector(-11.886401, 4.751579, 0)),  # 3
    Part.LineSegment(App.Vector(-11.886401, 4.751579, 0), App.Vector(-11.886401, 3.501579, 0)),  # 4
    Part.LineSegment(App.Vector(-11.886401, 3.501579, 0), App.Vector(-10.634822, 2.25, 0)),  # 5
], False)
sketch17.addConstraint([
    Sketcher.Constraint("Coincident", 0, 2, 1, 1),
    Sketcher.Constraint("Coincident", 1, 2, 2, 1),
    Sketcher.Constraint("Coincident", 2, 2, 3, 1),
    Sketcher.Constraint("Coincident", 3, 2, 4, 1),
    Sketcher.Constraint("Coincident", 4, 2, 5, 1),
    Sketcher.Constraint("Coincident", 5, 2, 0, 1),
    Sketcher.Constraint("Horizontal", 0),
    Sketcher.Constraint("Vertical", 2),
    Sketcher.Constraint("Horizontal", 3),
    Sketcher.Constraint("Vertical", 4),
    Sketcher.Constraint("Perpendicular", 1, 5),
    Sketcher.Constraint("Horizontal", 1, 2, 4, 2),
    Sketcher.Constraint("Equal", 1, 5),
    Sketcher.Constraint("DistanceX", 0, 1, 0, 2, Q("4.95 mm")),
    Sketcher.Constraint("DistanceY", 2, 1, 2, 2, Q("1.25 mm")),
    Sketcher.Constraint("Distance", 1, Q("1.77 mm")),
    Sketcher.Constraint("DistanceY", -1, 1, 0, 2, Q("2.25 mm")),
    Sketcher.Constraint("DistanceX", 3, 2, -1, 1, Q("11.886401 mm")),
])
pocket8 = body.newObject("PartDesign::Pocket", "Pocket007")
pocket8.Profile = sketch17
pocket8.Length = 10

doc.recompute()
